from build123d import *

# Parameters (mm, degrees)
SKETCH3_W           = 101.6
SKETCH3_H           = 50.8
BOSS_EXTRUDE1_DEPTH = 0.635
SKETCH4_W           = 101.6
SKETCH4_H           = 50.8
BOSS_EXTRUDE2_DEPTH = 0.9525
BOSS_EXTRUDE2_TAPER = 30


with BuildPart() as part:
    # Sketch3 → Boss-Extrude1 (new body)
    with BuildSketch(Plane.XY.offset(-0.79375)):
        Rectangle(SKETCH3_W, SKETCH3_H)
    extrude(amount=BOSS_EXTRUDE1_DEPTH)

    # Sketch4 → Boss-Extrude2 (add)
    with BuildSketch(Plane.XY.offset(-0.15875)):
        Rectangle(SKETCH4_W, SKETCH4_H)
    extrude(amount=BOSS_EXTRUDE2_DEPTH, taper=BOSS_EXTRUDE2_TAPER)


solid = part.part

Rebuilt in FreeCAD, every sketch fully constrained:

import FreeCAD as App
import Part
import Sketcher
from FreeCAD import Vector
Q = App.Units.Quantity


def add_polygon(sketch, points):
    """Adds a closed chain of lines whose ends are joined by coincident constraints."""
    first, n = sketch.GeometryCount, len(points)
    for a, b in zip(points, points[1:] + points[:1]):
        sketch.addGeometry(Part.LineSegment(App.Vector(*a, 0), App.Vector(*b, 0)), False)
    for i in range(n):
        sketch.addConstraint(Sketcher.Constraint("Coincident", first + i, 2, first + (i + 1) % n, 1))

doc = App.newDocument("Part")
body = doc.addObject("PartDesign::Body", "Body")

sketch1 = doc.addObject("Sketcher::SketchObject", "Sketch")
body.addObject(sketch1)
sketch1.AttachmentSupport = (doc.XY_Plane, [""])
sketch1.MapMode = "FlatFace"
sketch1.AttachmentOffset = App.Placement(Vector(0, 0, -0.03125 * 25.4), App.Rotation())
add_polygon(sketch1, [(-51, 25), (-51, -25), (51, -25), (51, 25)])
sketch1.addConstraint(Sketcher.Constraint("Vertical", 0))
sketch1.addConstraint(Sketcher.Constraint("Horizontal", 1))
sketch1.addConstraint(Sketcher.Constraint("Vertical", 2))
sketch1.addConstraint(Sketcher.Constraint("Horizontal", 3))
sketch1.addConstraint(Sketcher.Constraint("Symmetric", 0, 2, 2, 2, -1, 1))
sketch1.addConstraint(Sketcher.Constraint("DistanceX", 1, 1, 1, 2, Q("4 in")))
sketch1.addConstraint(Sketcher.Constraint("DistanceY", 0, 2, 0, 1, Q("2 in")))
pad1 = doc.addObject("PartDesign::Pad", "Pad")
body.addObject(pad1)
pad1.Profile = sketch1
pad1.Length = Q("0.025 in")

sketch2 = doc.addObject("Sketcher::SketchObject", "Sketch001")
body.addObject(sketch2)
sketch2.AttachmentSupport = (doc.XY_Plane, [""])
sketch2.MapMode = "FlatFace"
sketch2.AttachmentOffset = App.Placement(Vector(0, 0, -0.15875), App.Rotation())
add_polygon(sketch2, [(-51, 25), (-51, -25), (51, -25), (51, 25)])
sketch2.addConstraint(Sketcher.Constraint("Vertical", 0))
sketch2.addConstraint(Sketcher.Constraint("Horizontal", 1))
sketch2.addConstraint(Sketcher.Constraint("Vertical", 2))
sketch2.addConstraint(Sketcher.Constraint("Horizontal", 3))
sketch2.addConstraint(Sketcher.Constraint("Symmetric", 0, 2, 2, 2, -1, 1))
sketch2.addConstraint(Sketcher.Constraint("DistanceX", 1, 1, 1, 2, Q("4 in")))
sketch2.addConstraint(Sketcher.Constraint("DistanceY", 0, 2, 0, 1, Q("2 in")))
pad2 = doc.addObject("PartDesign::Pad", "Pad001")
body.addObject(pad2)
pad2.Profile = sketch2
pad2.Length = Q("0.0375 in")
pad2.TaperAngle = -30

doc.recompute()
